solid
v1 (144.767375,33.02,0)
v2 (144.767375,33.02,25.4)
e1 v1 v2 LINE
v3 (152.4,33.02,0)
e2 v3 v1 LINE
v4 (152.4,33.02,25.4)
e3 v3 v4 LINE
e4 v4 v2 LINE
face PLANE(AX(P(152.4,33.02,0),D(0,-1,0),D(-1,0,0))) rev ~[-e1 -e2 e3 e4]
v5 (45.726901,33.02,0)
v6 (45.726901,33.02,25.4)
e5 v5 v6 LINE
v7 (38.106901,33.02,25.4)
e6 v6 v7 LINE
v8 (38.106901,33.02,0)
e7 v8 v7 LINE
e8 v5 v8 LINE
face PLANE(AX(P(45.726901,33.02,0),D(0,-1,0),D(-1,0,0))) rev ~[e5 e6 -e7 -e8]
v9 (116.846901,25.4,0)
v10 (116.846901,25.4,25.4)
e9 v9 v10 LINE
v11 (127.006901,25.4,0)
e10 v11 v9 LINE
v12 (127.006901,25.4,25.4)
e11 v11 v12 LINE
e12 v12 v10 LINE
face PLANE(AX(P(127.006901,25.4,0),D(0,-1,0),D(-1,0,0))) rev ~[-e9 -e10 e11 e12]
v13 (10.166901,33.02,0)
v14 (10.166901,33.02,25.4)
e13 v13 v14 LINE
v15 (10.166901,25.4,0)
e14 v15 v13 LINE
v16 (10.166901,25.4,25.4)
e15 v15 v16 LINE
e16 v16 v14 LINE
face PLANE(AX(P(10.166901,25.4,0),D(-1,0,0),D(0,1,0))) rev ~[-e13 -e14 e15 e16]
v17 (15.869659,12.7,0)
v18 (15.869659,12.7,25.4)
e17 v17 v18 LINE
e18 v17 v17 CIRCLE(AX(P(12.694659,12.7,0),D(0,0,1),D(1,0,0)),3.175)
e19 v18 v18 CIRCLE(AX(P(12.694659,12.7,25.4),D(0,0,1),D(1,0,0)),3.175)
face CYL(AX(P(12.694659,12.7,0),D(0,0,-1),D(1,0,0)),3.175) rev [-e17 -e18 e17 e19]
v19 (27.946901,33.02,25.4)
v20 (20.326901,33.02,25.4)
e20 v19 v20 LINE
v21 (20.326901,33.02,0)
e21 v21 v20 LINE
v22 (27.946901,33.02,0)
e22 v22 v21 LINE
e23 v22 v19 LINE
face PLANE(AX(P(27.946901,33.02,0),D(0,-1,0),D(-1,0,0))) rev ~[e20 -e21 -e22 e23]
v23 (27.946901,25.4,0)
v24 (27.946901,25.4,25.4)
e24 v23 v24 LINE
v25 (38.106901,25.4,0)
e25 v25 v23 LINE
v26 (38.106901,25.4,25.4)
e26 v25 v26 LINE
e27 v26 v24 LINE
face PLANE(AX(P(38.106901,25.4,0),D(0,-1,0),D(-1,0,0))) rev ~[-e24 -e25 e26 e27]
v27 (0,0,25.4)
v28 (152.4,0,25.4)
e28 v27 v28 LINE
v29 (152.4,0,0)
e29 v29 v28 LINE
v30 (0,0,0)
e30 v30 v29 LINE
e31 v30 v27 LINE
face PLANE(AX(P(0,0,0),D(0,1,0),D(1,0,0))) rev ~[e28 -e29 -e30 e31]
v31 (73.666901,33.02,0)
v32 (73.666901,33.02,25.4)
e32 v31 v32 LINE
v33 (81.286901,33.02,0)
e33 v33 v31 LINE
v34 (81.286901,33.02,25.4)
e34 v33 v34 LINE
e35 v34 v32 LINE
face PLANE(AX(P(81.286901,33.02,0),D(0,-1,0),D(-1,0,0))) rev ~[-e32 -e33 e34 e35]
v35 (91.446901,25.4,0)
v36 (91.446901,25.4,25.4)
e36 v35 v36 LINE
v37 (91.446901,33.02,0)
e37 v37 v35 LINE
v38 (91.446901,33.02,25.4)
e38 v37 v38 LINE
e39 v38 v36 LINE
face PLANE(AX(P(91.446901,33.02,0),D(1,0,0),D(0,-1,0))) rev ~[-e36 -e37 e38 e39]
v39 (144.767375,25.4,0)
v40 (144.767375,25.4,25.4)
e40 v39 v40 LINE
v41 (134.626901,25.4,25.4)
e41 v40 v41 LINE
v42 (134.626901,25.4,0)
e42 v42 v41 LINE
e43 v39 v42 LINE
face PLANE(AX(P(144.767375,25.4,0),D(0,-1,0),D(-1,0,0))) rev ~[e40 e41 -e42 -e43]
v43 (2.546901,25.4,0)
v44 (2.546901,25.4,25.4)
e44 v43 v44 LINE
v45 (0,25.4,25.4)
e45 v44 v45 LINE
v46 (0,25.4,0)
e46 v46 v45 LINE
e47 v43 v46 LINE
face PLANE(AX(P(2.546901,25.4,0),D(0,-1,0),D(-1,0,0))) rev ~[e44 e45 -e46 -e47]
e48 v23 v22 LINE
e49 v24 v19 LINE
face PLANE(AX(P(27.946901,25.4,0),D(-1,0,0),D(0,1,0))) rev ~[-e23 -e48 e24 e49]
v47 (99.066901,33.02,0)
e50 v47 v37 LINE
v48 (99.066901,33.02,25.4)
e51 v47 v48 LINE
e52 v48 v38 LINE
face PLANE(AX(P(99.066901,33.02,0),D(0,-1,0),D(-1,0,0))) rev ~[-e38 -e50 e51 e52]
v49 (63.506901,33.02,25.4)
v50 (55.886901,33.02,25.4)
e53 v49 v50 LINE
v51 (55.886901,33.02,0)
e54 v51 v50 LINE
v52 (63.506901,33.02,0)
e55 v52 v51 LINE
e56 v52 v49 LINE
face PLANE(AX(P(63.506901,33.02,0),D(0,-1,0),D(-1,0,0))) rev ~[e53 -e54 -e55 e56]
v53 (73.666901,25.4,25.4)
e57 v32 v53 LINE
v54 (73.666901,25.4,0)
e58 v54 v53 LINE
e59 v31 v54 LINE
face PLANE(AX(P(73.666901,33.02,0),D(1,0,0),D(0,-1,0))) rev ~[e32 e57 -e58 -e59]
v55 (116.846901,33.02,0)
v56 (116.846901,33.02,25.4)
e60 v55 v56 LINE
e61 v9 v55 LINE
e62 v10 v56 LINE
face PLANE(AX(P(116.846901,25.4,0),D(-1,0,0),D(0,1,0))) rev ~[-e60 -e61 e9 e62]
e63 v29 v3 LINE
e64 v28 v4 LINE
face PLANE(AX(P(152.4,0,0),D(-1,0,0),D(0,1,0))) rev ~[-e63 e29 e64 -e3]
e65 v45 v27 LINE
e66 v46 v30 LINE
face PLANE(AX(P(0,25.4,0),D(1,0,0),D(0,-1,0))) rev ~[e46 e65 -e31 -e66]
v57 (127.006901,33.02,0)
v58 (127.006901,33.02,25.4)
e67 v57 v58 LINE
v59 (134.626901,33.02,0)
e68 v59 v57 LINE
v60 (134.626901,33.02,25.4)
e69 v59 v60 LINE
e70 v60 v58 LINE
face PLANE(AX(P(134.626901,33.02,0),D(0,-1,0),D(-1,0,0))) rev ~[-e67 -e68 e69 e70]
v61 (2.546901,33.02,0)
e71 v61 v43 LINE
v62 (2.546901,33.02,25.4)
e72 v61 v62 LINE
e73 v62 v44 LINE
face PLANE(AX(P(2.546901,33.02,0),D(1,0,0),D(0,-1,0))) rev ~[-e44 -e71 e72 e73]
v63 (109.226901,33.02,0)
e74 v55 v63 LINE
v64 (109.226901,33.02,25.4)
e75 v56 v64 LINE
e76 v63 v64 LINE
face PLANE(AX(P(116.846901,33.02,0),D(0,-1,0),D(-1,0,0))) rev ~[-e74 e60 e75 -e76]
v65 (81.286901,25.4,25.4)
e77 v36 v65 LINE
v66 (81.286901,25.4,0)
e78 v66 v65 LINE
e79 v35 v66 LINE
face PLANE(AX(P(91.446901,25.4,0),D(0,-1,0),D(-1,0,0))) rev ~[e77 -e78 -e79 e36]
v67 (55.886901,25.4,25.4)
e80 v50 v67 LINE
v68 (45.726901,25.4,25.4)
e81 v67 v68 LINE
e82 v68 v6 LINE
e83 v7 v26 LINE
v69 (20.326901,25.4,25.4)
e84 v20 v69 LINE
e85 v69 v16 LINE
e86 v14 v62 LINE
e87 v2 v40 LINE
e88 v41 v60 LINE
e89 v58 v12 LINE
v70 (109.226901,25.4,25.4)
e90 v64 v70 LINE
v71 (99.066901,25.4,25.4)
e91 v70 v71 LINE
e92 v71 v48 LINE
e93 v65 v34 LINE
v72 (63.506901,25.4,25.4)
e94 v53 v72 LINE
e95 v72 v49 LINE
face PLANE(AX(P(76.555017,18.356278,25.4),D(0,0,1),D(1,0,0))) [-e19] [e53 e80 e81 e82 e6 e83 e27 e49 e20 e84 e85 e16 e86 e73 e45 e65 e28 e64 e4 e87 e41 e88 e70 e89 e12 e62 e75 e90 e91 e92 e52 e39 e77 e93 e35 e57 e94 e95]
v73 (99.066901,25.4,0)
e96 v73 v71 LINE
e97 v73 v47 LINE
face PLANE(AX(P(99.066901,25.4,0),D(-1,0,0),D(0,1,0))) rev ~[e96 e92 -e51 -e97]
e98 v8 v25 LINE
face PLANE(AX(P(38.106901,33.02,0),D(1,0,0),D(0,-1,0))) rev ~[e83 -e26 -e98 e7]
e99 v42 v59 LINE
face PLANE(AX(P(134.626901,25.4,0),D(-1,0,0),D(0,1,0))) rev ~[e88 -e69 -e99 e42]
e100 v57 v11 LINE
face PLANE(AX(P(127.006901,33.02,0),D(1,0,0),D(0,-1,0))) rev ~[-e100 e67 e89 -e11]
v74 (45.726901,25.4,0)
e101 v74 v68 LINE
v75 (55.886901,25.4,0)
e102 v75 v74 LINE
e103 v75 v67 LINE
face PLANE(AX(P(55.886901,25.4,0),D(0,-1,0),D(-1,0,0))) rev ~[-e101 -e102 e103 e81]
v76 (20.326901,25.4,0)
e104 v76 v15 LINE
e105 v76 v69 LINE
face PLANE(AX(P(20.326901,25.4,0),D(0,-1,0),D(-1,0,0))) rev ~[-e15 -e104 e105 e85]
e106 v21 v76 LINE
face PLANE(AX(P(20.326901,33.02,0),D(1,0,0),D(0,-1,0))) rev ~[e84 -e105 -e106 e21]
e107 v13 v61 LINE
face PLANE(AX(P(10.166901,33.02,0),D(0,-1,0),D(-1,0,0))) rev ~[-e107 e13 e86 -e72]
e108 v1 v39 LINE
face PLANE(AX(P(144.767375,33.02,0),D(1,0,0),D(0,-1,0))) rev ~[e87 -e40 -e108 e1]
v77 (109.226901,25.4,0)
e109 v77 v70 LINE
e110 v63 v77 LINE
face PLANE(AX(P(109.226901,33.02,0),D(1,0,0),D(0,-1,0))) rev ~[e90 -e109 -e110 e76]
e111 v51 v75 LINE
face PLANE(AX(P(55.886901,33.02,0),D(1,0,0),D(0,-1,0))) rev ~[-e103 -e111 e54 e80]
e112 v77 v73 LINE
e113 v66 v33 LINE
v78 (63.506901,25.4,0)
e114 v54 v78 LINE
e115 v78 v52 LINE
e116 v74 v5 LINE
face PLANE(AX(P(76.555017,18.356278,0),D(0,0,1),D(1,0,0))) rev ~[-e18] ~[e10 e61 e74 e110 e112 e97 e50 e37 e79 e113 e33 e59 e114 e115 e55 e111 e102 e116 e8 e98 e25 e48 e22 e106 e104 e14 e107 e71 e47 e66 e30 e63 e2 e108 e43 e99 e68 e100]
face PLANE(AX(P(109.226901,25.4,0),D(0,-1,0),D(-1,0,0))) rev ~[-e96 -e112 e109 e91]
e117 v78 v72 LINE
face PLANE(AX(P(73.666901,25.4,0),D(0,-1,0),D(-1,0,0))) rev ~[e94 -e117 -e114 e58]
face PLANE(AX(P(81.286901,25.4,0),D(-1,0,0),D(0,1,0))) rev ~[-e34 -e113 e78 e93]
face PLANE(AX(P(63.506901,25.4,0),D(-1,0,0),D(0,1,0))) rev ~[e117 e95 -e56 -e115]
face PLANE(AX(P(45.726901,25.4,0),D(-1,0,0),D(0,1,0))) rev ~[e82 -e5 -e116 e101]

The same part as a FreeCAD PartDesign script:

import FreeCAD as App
import Part
import Sketcher
from FreeCAD import Vector
Q = App.Units.Quantity


def add_polygon(sketch, points):
    """Adds a closed chain of lines whose ends are joined by coincident constraints."""
    first, n = sketch.GeometryCount, len(points)
    for a, b in zip(points, points[1:] + points[:1]):
        sketch.addGeometry(Part.LineSegment(App.Vector(*a, 0), App.Vector(*b, 0)), False)
    for i in range(n):
        sketch.addConstraint(Sketcher.Constraint("Coincident", first + i, 2, first + (i + 1) % n, 1))

doc = App.newDocument("Part")
params = doc.addObject("Spreadsheet::Sheet", "Params")
for row, (alias, value) in enumerate([
    ("sketch1_diameter", "0.25 in"),
    ("sketch1_width", "6 in"),
    ("sketch1_height", "1 in"),
    ("sketch1_width2", "0.3 in"),
    ("sketch1_width3", "0.4 in"),
    ("pad1_length", "1 in"),
], start=1):
    params.set(f"A{row}", alias)
    params.set(f"B{row}", "=" + value)
    params.setAlias(f"B{row}", alias)

body = doc.addObject("PartDesign::Body", "Body")

sketch1 = body.newObject("Sketcher::SketchObject", "Sketch")
sketch1.AttachmentSupport = (doc.getObject("XY_Plane"), [""])
sketch1.MapMode = "FlatFace"
add_polygon(sketch1, [(0, 0), (152.4, 0), (152.4, 33), (144.8, 33), (144.8, 25.4), (134.6, 25.4), (134.6, 33), (127, 33), (127, 25.4), (116.8, 25.4), (116.8, 33), (109.2, 33), (109.2, 25.4), (99.1, 25.4), (99.1, 33), (91.4, 33), (91.4, 25.4), (81.3, 25.4), (81.3, 33), (73.7, 33), (73.7, 25.4), (63.5, 25.4), (63.5, 33), (55.9, 33), (55.9, 25.4), (45.7, 25.4), (45.7, 33), (38.1, 33), (38.1, 25.4), (27.9, 25.4), (27.9, 33), (20.3, 33), (20.3, 25.4), (10.2, 25.4), (10.2, 33), (2.5, 33), (2.5, 25.4), (0, 25.4)])
sketch1.addGeometry(Part.Circle(Vector(12.7, 12.7, 0), Vector(0, 0, 1), 3.2), False)
sketch1.addConstraint([
    Sketcher.Constraint("Horizontal", 0),
    Sketcher.Constraint("Vertical", 1),
    Sketcher.Constraint("Horizontal", 2),
    Sketcher.Constraint("Vertical", 3),
    Sketcher.Constraint("Horizontal", 4),
    Sketcher.Constraint("Vertical", 5),
    Sketcher.Constraint("Horizontal", 6),
    Sketcher.Constraint("Vertical", 7),
    Sketcher.Constraint("Horizontal", 8),
    Sketcher.Constraint("Vertical", 9),
    Sketcher.Constraint("Horizontal", 10),
    Sketcher.Constraint("Vertical", 11),
    Sketcher.Constraint("Horizontal", 12),
    Sketcher.Constraint("Vertical", 13),
    Sketcher.Constraint("Horizontal", 14),
    Sketcher.Constraint("Vertical", 15),
    Sketcher.Constraint("Horizontal", 16),
    Sketcher.Constraint("Vertical", 17),
    Sketcher.Constraint("Horizontal", 18),
    Sketcher.Constraint("Vertical", 19),
    Sketcher.Constraint("Horizontal", 20),
    Sketcher.Constraint("Vertical", 21),
    Sketcher.Constraint("Horizontal", 22),
    Sketcher.Constraint("Vertical", 23),
    Sketcher.Constraint("Horizontal", 24),
    Sketcher.Constraint("Vertical", 25),
    Sketcher.Constraint("Horizontal", 26),
    Sketcher.Constraint("Vertical", 27),
    Sketcher.Constraint("Horizontal", 28),
    Sketcher.Constraint("Vertical", 29),
    Sketcher.Constraint("Horizontal", 30),
    Sketcher.Constraint("Vertical", 31),
    Sketcher.Constraint("Horizontal", 32),
    Sketcher.Constraint("Vertical", 33),
    Sketcher.Constraint("Horizontal", 34),
    Sketcher.Constraint("Vertical", 35),
    Sketcher.Constraint("Horizontal", 36),
    Sketcher.Constraint("Vertical", 37),
    Sketcher.Constraint("Coincident", 37, 2, -1, 1),
    Sketcher.Constraint("Horizontal", 2, 2, 5, 2),
    Sketcher.Constraint("Horizontal", 4, 2, 7, 2),
    Sketcher.Constraint("Horizontal", 6, 2, 9, 2),
    Sketcher.Constraint("Horizontal", 8, 2, 11, 2),
    Sketcher.Constraint("Horizontal", 10, 2, 13, 2),
    Sketcher.Constraint("Horizontal", 12, 2, 15, 2),
    Sketcher.Constraint("Horizontal", 14, 2, 17, 2),
    Sketcher.Constraint("Horizontal", 16, 2, 19, 2),
    Sketcher.Constraint("Horizontal", 18, 2, 21, 2),
    Sketcher.Constraint("Horizontal", 20, 2, 23, 2),
    Sketcher.Constraint("Horizontal", 22, 2, 25, 2),
    Sketcher.Constraint("Horizontal", 24, 2, 27, 2),
    Sketcher.Constraint("Horizontal", 26, 2, 29, 2),
    Sketcher.Constraint("Horizontal", 28, 2, 31, 2),
    Sketcher.Constraint("Horizontal", 30, 2, 33, 2),
    Sketcher.Constraint("Horizontal", 32, 2, 35, 2),
    Sketcher.Constraint("Equal", 6, 10),
    Sketcher.Constraint("Equal", 8, 12),
    Sketcher.Constraint("Equal", 10, 14),
    Sketcher.Constraint("Equal", 12, 16),
    Sketcher.Constraint("Equal", 14, 18),
    Sketcher.Constraint("Equal", 16, 20),
    Sketcher.Constraint("Equal", 18, 22),
    Sketcher.Constraint("Equal", 20, 24),
    Sketcher.Constraint("Equal", 22, 26),
    Sketcher.Constraint("Equal", 24, 28),
    Sketcher.Constraint("Equal", 26, 30),
    Sketcher.Constraint("Equal", 28, 32),
    Sketcher.Constraint("Equal", 30, 34),
    Sketcher.Constraint("Equal", 34, 3),
    Sketcher.Constraint("Diameter", 38, Q("0.25 in")),
    Sketcher.Constraint("DistanceX", 0, 1, 0, 2, Q("6 in")),
    Sketcher.Constraint("DistanceY", 37, 2, 37, 1, Q("1 in")),
    Sketcher.Constraint("DistanceX", 6, 2, 6, 1, Q("0.3 in")),
    Sketcher.Constraint("DistanceX", 8, 2, 8, 1, Q("0.4 in")),
    Sketcher.Constraint("DistanceY", -1, 1, 38, 3, Q("0.5 in")),
    Sketcher.Constraint("DistanceX", 36, 2, 36, 1, 2.546901),
    Sketcher.Constraint("DistanceX", 2, 2, 2, 1, 7.632625),
    Sketcher.Constraint("DistanceX", -1, 1, 38, 3, 12.694659),
])
sketch1.setExpression("Constraints[107]", "Params.sketch1_diameter")
sketch1.setExpression("Constraints[108]", "Params.sketch1_width")
sketch1.setExpression("Constraints[109]", "Params.sketch1_height")
sketch1.setExpression("Constraints[110]", "Params.sketch1_width2")
sketch1.setExpression("Constraints[111]", "Params.sketch1_width3")
pad1 = body.newObject("PartDesign::Pad", "Pad")
pad1.Profile = sketch1
pad1.setExpression("Length", "Params.pad1_length")

doc.recompute()
